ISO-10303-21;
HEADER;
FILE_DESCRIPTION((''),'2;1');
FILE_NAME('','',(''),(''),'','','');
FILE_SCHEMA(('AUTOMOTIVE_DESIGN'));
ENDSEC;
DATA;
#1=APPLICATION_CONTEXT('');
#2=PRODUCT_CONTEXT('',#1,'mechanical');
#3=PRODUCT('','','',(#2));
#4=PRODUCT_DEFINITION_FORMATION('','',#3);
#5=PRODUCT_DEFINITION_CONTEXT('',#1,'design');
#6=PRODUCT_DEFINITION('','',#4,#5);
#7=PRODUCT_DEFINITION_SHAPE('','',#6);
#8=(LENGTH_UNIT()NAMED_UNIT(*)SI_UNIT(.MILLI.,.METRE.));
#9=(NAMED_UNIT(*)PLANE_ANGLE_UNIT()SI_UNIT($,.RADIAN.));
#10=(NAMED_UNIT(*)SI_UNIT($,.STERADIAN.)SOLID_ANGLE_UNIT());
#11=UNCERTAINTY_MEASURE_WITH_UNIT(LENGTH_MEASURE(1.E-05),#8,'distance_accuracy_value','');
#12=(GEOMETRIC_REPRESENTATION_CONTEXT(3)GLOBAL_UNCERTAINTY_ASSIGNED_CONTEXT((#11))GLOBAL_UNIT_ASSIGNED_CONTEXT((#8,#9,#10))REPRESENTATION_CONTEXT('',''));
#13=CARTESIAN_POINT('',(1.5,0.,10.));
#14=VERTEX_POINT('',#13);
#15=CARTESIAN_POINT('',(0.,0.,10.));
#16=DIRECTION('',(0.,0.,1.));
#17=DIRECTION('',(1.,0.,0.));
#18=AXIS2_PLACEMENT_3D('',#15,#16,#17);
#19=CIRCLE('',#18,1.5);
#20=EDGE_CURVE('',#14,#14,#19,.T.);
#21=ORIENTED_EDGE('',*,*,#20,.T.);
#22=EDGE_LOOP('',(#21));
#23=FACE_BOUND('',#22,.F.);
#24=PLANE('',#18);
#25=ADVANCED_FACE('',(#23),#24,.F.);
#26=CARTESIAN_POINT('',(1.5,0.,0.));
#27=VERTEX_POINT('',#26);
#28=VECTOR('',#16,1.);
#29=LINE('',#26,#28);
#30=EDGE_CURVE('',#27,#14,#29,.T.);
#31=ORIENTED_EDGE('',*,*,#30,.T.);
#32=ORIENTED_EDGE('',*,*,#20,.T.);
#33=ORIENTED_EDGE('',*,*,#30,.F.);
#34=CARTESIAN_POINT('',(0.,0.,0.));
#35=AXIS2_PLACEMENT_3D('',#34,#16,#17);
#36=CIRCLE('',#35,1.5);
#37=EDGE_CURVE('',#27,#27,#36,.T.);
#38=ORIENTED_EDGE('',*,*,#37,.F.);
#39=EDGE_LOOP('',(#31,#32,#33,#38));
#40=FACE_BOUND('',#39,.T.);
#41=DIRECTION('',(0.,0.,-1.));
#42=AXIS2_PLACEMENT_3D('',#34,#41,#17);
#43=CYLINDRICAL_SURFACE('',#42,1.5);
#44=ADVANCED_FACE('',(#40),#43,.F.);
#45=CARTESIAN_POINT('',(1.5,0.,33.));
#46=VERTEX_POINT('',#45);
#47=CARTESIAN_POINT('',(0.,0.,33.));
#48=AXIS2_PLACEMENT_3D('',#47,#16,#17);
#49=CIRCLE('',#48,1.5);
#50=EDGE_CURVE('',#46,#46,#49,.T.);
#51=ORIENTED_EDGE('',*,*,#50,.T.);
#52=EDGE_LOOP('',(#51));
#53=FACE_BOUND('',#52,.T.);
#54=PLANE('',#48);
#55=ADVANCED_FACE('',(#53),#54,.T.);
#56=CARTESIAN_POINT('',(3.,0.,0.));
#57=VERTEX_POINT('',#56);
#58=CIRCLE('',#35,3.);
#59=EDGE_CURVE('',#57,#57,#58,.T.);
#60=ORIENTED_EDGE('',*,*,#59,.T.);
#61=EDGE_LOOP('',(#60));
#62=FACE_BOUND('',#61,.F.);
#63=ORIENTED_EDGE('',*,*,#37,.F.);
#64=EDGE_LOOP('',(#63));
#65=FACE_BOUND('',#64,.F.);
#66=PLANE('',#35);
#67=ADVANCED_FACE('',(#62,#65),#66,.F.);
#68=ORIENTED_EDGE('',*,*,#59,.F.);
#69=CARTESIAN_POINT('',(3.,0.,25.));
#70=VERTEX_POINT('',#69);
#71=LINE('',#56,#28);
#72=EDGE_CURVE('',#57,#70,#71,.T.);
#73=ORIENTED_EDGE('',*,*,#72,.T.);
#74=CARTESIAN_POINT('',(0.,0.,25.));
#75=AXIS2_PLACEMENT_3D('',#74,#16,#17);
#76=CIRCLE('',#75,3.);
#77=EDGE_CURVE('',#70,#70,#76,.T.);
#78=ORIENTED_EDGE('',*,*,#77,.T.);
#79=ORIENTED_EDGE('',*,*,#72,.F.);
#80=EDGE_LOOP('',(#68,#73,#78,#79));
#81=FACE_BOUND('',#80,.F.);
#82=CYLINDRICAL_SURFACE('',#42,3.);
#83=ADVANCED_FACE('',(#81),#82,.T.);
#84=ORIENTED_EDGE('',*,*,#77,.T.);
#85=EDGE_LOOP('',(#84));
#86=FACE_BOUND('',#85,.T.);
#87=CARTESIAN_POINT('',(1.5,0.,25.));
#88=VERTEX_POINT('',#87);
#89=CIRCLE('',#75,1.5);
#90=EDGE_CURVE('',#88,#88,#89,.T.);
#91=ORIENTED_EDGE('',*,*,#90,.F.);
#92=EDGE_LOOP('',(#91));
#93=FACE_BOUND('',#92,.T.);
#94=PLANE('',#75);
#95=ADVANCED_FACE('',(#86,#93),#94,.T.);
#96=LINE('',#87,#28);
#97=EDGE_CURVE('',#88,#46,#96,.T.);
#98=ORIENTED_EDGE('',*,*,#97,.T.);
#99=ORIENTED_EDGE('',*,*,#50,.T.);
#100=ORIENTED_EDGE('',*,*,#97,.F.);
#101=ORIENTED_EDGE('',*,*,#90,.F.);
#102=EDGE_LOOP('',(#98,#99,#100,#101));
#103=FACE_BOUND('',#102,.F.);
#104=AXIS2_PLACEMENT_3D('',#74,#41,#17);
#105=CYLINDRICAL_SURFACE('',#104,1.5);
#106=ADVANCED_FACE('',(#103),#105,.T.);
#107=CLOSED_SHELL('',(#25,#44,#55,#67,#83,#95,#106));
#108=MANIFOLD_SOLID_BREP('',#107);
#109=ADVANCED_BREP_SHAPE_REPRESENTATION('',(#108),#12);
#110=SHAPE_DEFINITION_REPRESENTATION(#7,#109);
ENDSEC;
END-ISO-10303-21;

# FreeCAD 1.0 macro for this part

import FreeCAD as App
import Part
import Sketcher
from FreeCAD import Vector

doc = App.newDocument("Part")
body = doc.addObject("PartDesign::Body", "Body")

# Sketch on XY plane
sketch1 = body.newObject("Sketcher::SketchObject", "Sketch")
sketch1.AttachmentSupport = (doc.getObject("XY_Plane"), [""])
sketch1.MapMode = "FlatFace"
sketch1.addGeometry(Part.Circle(Vector(0, 0, 0), Vector(0, 0, 1), 3), False)
sketch1.addConstraint(Sketcher.Constraint("Coincident", 0, 3, -1, 1))
sketch1.addConstraint(Sketcher.Constraint("Diameter", 0, 6.0))
pad1 = body.newObject("PartDesign::Pad", "Pad")
pad1.Profile = sketch1
pad1.Length = 25

# Sketch on XY plane
sketch2 = body.newObject("Sketcher::SketchObject", "Sketch001")
sketch2.AttachmentSupport = (doc.getObject("XY_Plane"), [""])
sketch2.MapMode = "FlatFace"
sketch2.addGeometry(Part.Circle(Vector(0, 0, 0), Vector(0, 0, 1), 1.5), False)
sketch2.addConstraint(Sketcher.Constraint("Coincident", 0, 3, -1, 1))
sketch2.addConstraint(Sketcher.Constraint("Diameter", 0, 3.0))
pocket1 = body.newObject("PartDesign::Pocket", "Pocket")
pocket1.Profile = sketch2
pocket1.Length = 10
pocket1.Reversed = True

# Sketch on XY plane
sketch3 = body.newObject("Sketcher::SketchObject", "Sketch002")
sketch3.AttachmentSupport = (doc.getObject("XY_Plane"), [""])
sketch3.MapMode = "FlatFace"
sketch3.AttachmentOffset = App.Placement(Vector(0, 0, 25), App.Rotation())
sketch3.addGeometry(Part.Circle(Vector(0, 0, 0), Vector(0, 0, 1), 1.5), False)
sketch3.addConstraint(Sketcher.Constraint("Coincident", 0, 3, -1, 1))
sketch3.addConstraint(Sketcher.Constraint("Diameter", 0, 3.0))
pad2 = body.newObject("PartDesign::Pad", "Pad001")
pad2.Profile = sketch3
pad2.Length = 8

doc.recompute()
